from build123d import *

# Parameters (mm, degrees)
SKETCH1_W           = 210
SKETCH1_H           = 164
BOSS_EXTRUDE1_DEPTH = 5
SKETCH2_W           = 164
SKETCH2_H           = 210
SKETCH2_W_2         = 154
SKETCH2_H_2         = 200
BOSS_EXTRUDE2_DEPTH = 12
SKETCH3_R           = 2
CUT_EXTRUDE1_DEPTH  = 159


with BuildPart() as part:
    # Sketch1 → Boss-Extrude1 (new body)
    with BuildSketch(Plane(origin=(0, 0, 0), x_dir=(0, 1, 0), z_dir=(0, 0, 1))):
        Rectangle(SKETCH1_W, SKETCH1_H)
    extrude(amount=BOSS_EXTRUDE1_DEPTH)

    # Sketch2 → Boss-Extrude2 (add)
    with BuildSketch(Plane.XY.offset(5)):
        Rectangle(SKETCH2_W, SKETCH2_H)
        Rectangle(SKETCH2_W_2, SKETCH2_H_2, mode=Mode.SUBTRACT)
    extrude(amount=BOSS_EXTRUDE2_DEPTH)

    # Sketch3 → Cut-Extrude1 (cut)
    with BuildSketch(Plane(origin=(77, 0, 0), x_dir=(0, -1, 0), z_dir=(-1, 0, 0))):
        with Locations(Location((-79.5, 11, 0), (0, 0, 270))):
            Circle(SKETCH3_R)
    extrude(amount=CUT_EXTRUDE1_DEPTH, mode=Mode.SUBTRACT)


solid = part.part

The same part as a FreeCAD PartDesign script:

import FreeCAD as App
import Part
import Sketcher

V = App.Vector
Q = App.Units.Quantity


def add_polygon(sketch, points):
    """Adds a closed chain of lines whose ends are joined by coincident constraints."""
    first, n = sketch.GeometryCount, len(points)
    for a, b in zip(points, points[1:] + points[:1]):
        sketch.addGeometry(Part.LineSegment(App.Vector(*a, 0), App.Vector(*b, 0)), False)
    for i in range(n):
        sketch.addConstraint(Sketcher.Constraint("Coincident", first + i, 2, first + (i + 1) % n, 1))

doc = App.newDocument("Part")
body = doc.addObject("PartDesign::Body", "Body")

# Sketch on XY plane
sketch1 = body.newObject("Sketcher::SketchObject", "Sketch")
sketch1.AttachmentSupport = (doc.getObject("XY_Plane"), [""])
sketch1.MapMode = "FlatFace"
add_polygon(sketch1, [(-82, -105), (82, -105), (82, 105), (-82, 105)])  # lines 0-3
sketch1.addConstraint([
    Sketcher.Constraint("Horizontal", 0),
    Sketcher.Constraint("Vertical", 1),
    Sketcher.Constraint("Horizontal", 2),
    Sketcher.Constraint("Vertical", 3),
    Sketcher.Constraint("Symmetric", 0, 2, 2, 2, -1, 1),
    Sketcher.Constraint("DistanceX", 0, 1, 0, 2, Q("164 mm")),
    Sketcher.Constraint("DistanceY", 1, 1, 1, 2, Q("210 mm")),
])
pad1 = body.newObject("PartDesign::Pad", "Pad")
pad1.Profile = sketch1
pad1.Length = 5

# Sketch on XY plane
sketch2 = body.newObject("Sketcher::SketchObject", "Sketch001")
sketch2.AttachmentSupport = (doc.getObject("XY_Plane"), [""])
sketch2.MapMode = "FlatFace"
sketch2.AttachmentOffset = App.Placement(V(0, 0, 5), App.Rotation())
add_polygon(sketch2, [(-82, 105), (-82, -105), (82, -105), (82, 105)])  # lines 0-3
add_polygon(sketch2, [(77, -100), (-77, -100), (-77, 100), (77, 100)])  # lines 4-7
sketch2.addConstraint([
    Sketcher.Constraint("Vertical", 0),
    Sketcher.Constraint("Horizontal", 1),
    Sketcher.Constraint("Vertical", 2),
    Sketcher.Constraint("Horizontal", 3),
    Sketcher.Constraint("Horizontal", 4),
    Sketcher.Constraint("Vertical", 5),
    Sketcher.Constraint("Horizontal", 6),
    Sketcher.Constraint("Vertical", 7),
    Sketcher.Constraint("Symmetric", 0, 2, 2, 2, -1, 1),
    Sketcher.Constraint("Symmetric", 4, 2, 6, 2, -1, 1),
    Sketcher.Constraint("DistanceX", 1, 1, 1, 2, Q("164 mm")),
    Sketcher.Constraint("DistanceX", 4, 2, 4, 1, Q("154 mm")),
    Sketcher.Constraint("DistanceY", 0, 2, 0, 1, Q("210 mm")),
    Sketcher.Constraint("DistanceY", 5, 1, 5, 2, Q("200 mm")),
])
pad2 = body.newObject("PartDesign::Pad", "Pad001")
pad2.Profile = sketch2
pad2.Length = 12

# Sketch on YZ plane
sketch3 = body.newObject("Sketcher::SketchObject", "Sketch002")
sketch3.AttachmentSupport = (doc.getObject("YZ_Plane"), [""])
sketch3.MapMode = "FlatFace"
sketch3.AttachmentOffset = App.Placement(V(0, 0, 77), App.Rotation())
sketch3.addGeometry(Part.Circle(V(79.5, 11, 0), V(0, 0, 1), 2), False)
sketch3.addConstraint([
    Sketcher.Constraint("Diameter", 0, Q("4 mm")),
    Sketcher.Constraint("DistanceY", -1, 1, 0, 3, Q("11 mm")),
    Sketcher.Constraint("DistanceX", -1, 1, 0, 3, Q("79.5 mm")),
])
pocket1 = body.newObject("PartDesign::Pocket", "Pocket")
pocket1.Profile = sketch3
pocket1.Length = 159

doc.recompute()
